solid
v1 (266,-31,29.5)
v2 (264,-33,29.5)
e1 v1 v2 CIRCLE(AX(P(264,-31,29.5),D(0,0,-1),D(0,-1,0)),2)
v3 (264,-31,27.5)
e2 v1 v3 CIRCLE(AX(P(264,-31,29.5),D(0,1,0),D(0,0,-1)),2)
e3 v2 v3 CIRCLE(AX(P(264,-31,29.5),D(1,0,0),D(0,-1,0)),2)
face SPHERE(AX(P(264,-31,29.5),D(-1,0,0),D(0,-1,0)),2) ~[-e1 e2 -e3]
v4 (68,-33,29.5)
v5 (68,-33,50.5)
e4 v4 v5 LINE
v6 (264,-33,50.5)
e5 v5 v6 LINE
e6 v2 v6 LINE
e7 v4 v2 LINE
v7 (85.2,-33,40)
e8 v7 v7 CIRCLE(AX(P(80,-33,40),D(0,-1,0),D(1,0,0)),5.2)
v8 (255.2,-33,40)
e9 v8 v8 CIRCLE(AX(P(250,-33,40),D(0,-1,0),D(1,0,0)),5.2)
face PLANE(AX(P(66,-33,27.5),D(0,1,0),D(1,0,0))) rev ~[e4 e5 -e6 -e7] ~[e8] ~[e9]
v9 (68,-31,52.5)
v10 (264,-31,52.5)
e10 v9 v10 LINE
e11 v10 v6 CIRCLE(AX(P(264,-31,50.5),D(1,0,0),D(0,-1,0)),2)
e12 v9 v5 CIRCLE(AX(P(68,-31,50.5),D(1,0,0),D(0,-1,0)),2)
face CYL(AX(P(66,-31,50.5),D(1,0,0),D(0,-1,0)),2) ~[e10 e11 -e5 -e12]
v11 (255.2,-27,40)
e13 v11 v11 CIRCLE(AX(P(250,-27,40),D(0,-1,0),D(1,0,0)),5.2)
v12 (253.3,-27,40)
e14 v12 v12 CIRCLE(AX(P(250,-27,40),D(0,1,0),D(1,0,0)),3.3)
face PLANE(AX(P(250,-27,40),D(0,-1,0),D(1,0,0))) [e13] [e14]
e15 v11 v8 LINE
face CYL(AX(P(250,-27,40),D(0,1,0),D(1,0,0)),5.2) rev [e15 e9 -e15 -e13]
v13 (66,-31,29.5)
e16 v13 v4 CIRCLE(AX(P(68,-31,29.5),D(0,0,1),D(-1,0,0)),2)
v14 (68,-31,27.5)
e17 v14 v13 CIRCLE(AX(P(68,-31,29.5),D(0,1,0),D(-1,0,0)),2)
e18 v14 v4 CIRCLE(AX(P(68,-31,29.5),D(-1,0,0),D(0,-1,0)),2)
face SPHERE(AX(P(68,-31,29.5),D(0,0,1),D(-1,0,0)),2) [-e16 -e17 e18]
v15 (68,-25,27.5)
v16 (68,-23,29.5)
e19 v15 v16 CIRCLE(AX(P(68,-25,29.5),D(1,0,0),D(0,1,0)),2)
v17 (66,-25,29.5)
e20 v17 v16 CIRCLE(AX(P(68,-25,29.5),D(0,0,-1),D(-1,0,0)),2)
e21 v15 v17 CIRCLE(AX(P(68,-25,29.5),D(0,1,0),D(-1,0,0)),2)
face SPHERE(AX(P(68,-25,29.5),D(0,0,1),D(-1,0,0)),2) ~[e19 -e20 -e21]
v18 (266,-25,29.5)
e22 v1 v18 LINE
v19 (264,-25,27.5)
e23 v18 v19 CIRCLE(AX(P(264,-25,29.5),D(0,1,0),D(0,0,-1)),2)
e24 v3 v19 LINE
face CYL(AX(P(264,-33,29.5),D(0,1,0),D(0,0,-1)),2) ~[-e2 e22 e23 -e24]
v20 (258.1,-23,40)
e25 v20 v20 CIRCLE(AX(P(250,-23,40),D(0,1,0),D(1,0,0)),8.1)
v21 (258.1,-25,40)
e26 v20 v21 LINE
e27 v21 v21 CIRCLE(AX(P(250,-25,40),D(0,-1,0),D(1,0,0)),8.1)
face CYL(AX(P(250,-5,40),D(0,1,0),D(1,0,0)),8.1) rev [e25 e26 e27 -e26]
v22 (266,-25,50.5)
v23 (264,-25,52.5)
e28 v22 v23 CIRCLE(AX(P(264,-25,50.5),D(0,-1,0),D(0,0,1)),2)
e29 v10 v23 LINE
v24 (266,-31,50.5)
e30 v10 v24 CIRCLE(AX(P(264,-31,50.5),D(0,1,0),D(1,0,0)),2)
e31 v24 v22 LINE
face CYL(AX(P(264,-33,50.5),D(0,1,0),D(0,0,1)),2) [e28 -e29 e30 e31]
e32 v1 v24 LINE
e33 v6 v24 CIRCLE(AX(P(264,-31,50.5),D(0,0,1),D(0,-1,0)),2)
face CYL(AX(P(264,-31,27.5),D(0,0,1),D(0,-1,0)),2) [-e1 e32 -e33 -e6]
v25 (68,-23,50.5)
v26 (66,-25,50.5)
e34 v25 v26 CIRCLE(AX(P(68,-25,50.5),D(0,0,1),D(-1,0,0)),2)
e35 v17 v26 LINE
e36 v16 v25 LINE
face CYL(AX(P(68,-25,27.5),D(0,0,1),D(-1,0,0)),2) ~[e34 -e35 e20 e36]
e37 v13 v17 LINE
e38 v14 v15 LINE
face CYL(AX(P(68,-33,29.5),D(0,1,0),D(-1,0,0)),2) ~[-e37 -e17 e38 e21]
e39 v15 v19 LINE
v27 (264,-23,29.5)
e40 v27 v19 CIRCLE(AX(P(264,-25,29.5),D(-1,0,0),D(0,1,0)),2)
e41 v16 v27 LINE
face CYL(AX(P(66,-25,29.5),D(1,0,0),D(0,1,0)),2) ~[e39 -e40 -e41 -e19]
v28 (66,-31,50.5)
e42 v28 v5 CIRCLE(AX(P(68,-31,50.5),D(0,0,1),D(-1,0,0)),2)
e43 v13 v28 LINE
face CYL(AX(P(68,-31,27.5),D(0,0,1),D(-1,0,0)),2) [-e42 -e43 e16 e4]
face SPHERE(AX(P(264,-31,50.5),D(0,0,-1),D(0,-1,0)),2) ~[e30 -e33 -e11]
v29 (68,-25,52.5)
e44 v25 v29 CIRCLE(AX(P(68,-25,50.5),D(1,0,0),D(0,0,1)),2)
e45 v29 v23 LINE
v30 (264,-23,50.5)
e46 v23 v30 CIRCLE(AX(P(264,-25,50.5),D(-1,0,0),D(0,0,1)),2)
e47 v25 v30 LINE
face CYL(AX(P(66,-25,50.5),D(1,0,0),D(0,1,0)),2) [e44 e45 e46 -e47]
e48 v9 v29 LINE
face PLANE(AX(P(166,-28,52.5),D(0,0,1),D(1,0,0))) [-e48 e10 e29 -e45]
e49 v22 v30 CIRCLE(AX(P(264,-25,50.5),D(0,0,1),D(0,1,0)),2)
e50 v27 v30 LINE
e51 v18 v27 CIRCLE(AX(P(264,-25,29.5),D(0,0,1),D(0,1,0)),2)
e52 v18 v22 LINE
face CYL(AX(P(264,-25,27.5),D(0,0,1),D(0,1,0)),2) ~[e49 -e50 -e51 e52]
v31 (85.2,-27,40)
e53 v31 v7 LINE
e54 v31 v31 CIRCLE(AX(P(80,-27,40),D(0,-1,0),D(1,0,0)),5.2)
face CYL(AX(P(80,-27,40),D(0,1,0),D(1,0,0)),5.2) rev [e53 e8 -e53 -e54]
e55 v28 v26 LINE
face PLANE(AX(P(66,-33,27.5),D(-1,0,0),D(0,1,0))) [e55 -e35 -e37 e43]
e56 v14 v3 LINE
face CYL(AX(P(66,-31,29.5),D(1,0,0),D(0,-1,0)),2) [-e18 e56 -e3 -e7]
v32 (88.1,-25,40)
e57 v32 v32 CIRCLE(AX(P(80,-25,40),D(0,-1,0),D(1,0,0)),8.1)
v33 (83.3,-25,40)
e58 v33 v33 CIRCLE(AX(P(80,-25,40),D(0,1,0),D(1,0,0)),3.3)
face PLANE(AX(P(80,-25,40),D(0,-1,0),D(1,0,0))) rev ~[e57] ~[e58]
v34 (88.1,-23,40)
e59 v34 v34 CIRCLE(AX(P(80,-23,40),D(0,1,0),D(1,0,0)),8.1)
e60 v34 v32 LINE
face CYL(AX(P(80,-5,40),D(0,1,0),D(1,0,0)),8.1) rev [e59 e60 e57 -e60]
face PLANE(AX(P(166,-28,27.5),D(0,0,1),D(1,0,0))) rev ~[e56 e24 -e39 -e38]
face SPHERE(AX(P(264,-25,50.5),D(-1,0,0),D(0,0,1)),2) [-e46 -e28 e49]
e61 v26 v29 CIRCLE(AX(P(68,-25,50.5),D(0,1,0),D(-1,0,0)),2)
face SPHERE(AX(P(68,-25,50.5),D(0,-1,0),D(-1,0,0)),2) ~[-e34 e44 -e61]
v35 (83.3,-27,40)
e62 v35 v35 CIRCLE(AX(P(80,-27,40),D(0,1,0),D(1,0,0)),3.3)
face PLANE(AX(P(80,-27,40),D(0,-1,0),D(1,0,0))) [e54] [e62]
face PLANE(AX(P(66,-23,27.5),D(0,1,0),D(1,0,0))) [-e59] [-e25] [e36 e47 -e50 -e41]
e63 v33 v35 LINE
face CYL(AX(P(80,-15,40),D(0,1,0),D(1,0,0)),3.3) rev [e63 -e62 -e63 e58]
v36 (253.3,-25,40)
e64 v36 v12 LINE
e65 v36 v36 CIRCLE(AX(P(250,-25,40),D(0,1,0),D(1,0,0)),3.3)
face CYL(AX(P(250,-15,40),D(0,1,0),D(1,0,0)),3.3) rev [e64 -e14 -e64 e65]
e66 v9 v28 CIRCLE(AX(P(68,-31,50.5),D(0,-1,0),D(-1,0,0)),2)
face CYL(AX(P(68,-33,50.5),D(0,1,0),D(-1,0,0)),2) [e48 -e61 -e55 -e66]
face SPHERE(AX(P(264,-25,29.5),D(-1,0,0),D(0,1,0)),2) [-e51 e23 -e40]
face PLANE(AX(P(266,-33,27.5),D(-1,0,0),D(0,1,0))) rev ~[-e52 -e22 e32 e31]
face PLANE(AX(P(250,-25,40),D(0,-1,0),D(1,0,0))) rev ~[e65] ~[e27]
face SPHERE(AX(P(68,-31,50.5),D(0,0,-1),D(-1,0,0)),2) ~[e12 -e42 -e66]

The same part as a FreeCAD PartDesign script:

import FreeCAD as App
import Part
import Sketcher
from FreeCAD import Vector


def edges_at(feature, points):
    """Names of the edges that pass closest to the given points."""
    edges = feature.Shape.Edges
    near = lambda p: min(range(len(edges)), key=lambda i: edges[i].distToShape(Part.Vertex(*p))[0])
    return sorted({f"Edge{near(p) + 1}" for p in points})

doc = App.newDocument("Part")
body = doc.addObject("PartDesign::Body", "Body")

# Sketch on XZ plane
sketch1 = body.newObject("Sketcher::SketchObject", "Sketch")
sketch1.AttachmentSupport = (doc.getObject("XZ_Plane"), [""])
sketch1.MapMode = "FlatFace"
sketch1.AttachmentOffset = App.Placement(Vector(0, 0, 22), App.Rotation())
sketch1.addGeometry(Part.Circle(Vector(250, 40, 0), Vector(0, 0, 1), 5), False)
sketch1.addConstraint(Sketcher.Constraint("Diameter", 0, 10.4))
sketch1.addConstraint(Sketcher.Constraint("DistanceX", -1, 1, 0, 3, 250.0))
sketch1.addConstraint(Sketcher.Constraint("DistanceY", -1, 1, 0, 3, 40.0))
pad1 = body.newObject("PartDesign::Pad", "Pad")
pad1.Profile = sketch1
pad1.Length = 6
body2 = doc.addObject("PartDesign::Body", "Body001")

# Sketch on XZ plane
sketch2 = body2.newObject("Sketcher::SketchObject", "Sketch001")
sketch2.AttachmentSupport = (doc.getObject("XZ_Plane001"), [""])
sketch2.MapMode = "FlatFace"
sketch2.AttachmentOffset = App.Placement(Vector(0, 0, 10), App.Rotation())
sketch2.addGeometry(Part.Circle(Vector(80, 40, 0), Vector(0, 0, 1), 3.3), False)
sketch2.addConstraint(Sketcher.Constraint("Diameter", 0, 6.6))
sketch2.addConstraint(Sketcher.Constraint("DistanceX", -1, 1, 0, 3, 80.0))
sketch2.addConstraint(Sketcher.Constraint("DistanceY", -1, 1, 0, 3, 40.0))
pad2 = body2.newObject("PartDesign::Pad", "Pad001")
pad2.Profile = sketch2
pad2.Length = 20
body3 = doc.addObject("PartDesign::Body", "Body002")

# Sketch on XZ plane
sketch3 = body3.newObject("Sketcher::SketchObject", "Sketch002")
sketch3.AttachmentSupport = (doc.getObject("XZ_Plane002"), [""])
sketch3.MapMode = "FlatFace"
sketch3.AttachmentOffset = App.Placement(Vector(0, 0, 10), App.Rotation())
sketch3.addGeometry(Part.Circle(Vector(250, 40, 0), Vector(0, 0, 1), 3.3), False)
sketch3.addConstraint(Sketcher.Constraint("Diameter", 0, 6.6))
sketch3.addConstraint(Sketcher.Constraint("DistanceX", -1, 1, 0, 3, 250.0))
sketch3.addConstraint(Sketcher.Constraint("DistanceY", -1, 1, 0, 3, 40.0))
pad3 = body3.newObject("PartDesign::Pad", "Pad002")
pad3.Profile = sketch3
pad3.Length = 20
body4 = doc.addObject("PartDesign::Body", "Body003")
body4.AllowCompound = True

# Sketch on XZ plane
sketch4 = body4.newObject("Sketcher::SketchObject", "Sketch003")
sketch4.AttachmentSupport = (doc.getObject("XZ_Plane003"), [""])
sketch4.MapMode = "FlatFace"
sketch4.AttachmentOffset = App.Placement(Vector(0, 0, 22), App.Rotation())
sketch4.addGeometry(Part.Circle(Vector(80, 40, 0), Vector(0, 0, 1), 5), False)
sketch4.addConstraint(Sketcher.Constraint("Diameter", 0, 10.4))
sketch4.addConstraint(Sketcher.Constraint("DistanceX", -1, 1, 0, 3, 80.0))
sketch4.addConstraint(Sketcher.Constraint("DistanceY", -1, 1, 0, 3, 40.0))
pad4 = body4.newObject("PartDesign::Pad", "Pad003")
pad4.Profile = sketch4
pad4.Length = 6
doc.recompute()

boolean = body4.newObject("PartDesign::Boolean", "Boolean")
boolean.Type = "Fuse"
boolean.addObjects([body])
doc.recompute()

boolean2 = body4.newObject("PartDesign::Boolean", "Boolean001")
boolean2.Type = "Fuse"
boolean2.addObjects([body2])
doc.recompute()

boolean3 = body4.newObject("PartDesign::Boolean", "Boolean002")
boolean3.Type = "Fuse"
boolean3.addObjects([body3])
body5 = doc.addObject("PartDesign::Body", "Body004")

# Sketch on XZ plane
sketch5 = body5.newObject("Sketcher::SketchObject", "Sketch004")
sketch5.AttachmentSupport = (doc.getObject("XZ_Plane004"), [""])
sketch5.MapMode = "FlatFace"
sketch5.addGeometry(Part.Circle(Vector(250, 40, 0), Vector(0, 0, 1), 8), False)
sketch5.addConstraint(Sketcher.Constraint("Diameter", 0, 16.2))
sketch5.addConstraint(Sketcher.Constraint("DistanceX", -1, 1, 0, 3, 250.0))
sketch5.addConstraint(Sketcher.Constraint("DistanceY", -1, 1, 0, 3, 40.0))
pad5 = body5.newObject("PartDesign::Pad", "Pad004")
pad5.Profile = sketch5
pad5.Length = 20
body6 = doc.addObject("PartDesign::Body", "Body005")

# Sketch on XZ plane
sketch6 = body6.newObject("Sketcher::SketchObject", "Sketch005")
sketch6.AttachmentSupport = (doc.getObject("XZ_Plane005"), [""])
sketch6.MapMode = "FlatFace"
sketch6.addGeometry(Part.Circle(Vector(80, 40, 0), Vector(0, 0, 1), 8), False)
sketch6.addConstraint(Sketcher.Constraint("Diameter", 0, 16.2))
sketch6.addConstraint(Sketcher.Constraint("DistanceX", -1, 1, 0, 3, 80.0))
sketch6.addConstraint(Sketcher.Constraint("DistanceY", -1, 1, 0, 3, 40.0))
pad6 = body6.newObject("PartDesign::Pad", "Pad005")
pad6.Profile = sketch6
pad6.Length = 20
body7 = doc.addObject("PartDesign::Body", "Body006")

# Sketch on XY plane
sketch7 = body7.newObject("Sketcher::SketchObject", "Sketch006")
sketch7.AttachmentSupport = (doc.getObject("XY_Plane006"), [""])
sketch7.MapMode = "FlatFace"
sketch7.AttachmentOffset = App.Placement(Vector(0, 0, 27.5), App.Rotation())
sketch7.addGeometry(Part.LineSegment(Vector(66, -18, 0), Vector(66, -28, 0)), False)
sketch7.addGeometry(Part.LineSegment(Vector(66, -28, 0), Vector(266, -28, 0)), False)
sketch7.addGeometry(Part.LineSegment(Vector(266, -28, 0), Vector(266, -18, 0)), False)
sketch7.addGeometry(Part.LineSegment(Vector(266, -18, 0), Vector(66, -18, 0)), False)
sketch7.addConstraint(Sketcher.Constraint("Coincident", 0, 2, 1, 1))
sketch7.addConstraint(Sketcher.Constraint("Coincident", 1, 2, 2, 1))
sketch7.addConstraint(Sketcher.Constraint("Coincident", 2, 2, 3, 1))
sketch7.addConstraint(Sketcher.Constraint("Coincident", 3, 2, 0, 1))
sketch7.addConstraint(Sketcher.Constraint("Vertical", 0))
sketch7.addConstraint(Sketcher.Constraint("Horizontal", 1))
sketch7.addConstraint(Sketcher.Constraint("Vertical", 2))
sketch7.addConstraint(Sketcher.Constraint("Horizontal", 3))
sketch7.addConstraint(Sketcher.Constraint("DistanceX", 1, 1, 1, 2, 200.0))
sketch7.addConstraint(Sketcher.Constraint("DistanceY", 0, 2, 0, 1, 10.0))
sketch7.addConstraint(Sketcher.Constraint("DistanceX", -1, 1, 0, 2, 66.0))
sketch7.addConstraint(Sketcher.Constraint("DistanceY", 0, 2, -1, 1, 28.0))
pad7 = body7.newObject("PartDesign::Pad", "Pad006")
pad7.Profile = sketch7
pad7.Length = 25
doc.recompute()

boolean4 = body7.newObject("PartDesign::Boolean", "Boolean003")
boolean4.Type = "Cut"
boolean4.addObjects([body6])
doc.recompute()

boolean5 = body7.newObject("PartDesign::Boolean", "Boolean004")
boolean5.Type = "Cut"
boolean5.addObjects([body5])
doc.recompute()

boolean6 = body7.newObject("PartDesign::Boolean", "Boolean005")
boolean6.Type = "Cut"
boolean6.addObjects([body4])
doc.recompute()

fillet = body7.newObject("PartDesign::Fillet", "Fillet")
fillet.Base = (boolean6, edges_at(boolean6, [
    (66, -28, 40),
    (66, -23, 52.5),
    (66, -18, 40),
    (66, -23, 27.5),
    (166, -28, 27.5),
    (266, -28, 40),
    (166, -28, 52.5),
    (166, -18, 52.5),
    (266, -23, 52.5),
    (166, -18, 27.5),
    (266, -18, 40),
    (266, -23, 27.5),
]))
fillet.Radius = 2
body8 = doc.addObject("PartDesign::Body", "Body007")
doc.recompute()

body7.Placement = App.Placement(Vector(0, -5, 0), App.Rotation(Vector(0, 0, 1), 0))
boolean7 = body8.newObject("PartDesign::Boolean", "Boolean006")
boolean7.Type = "Fuse"
boolean7.addObjects([body7])

doc.recompute()
